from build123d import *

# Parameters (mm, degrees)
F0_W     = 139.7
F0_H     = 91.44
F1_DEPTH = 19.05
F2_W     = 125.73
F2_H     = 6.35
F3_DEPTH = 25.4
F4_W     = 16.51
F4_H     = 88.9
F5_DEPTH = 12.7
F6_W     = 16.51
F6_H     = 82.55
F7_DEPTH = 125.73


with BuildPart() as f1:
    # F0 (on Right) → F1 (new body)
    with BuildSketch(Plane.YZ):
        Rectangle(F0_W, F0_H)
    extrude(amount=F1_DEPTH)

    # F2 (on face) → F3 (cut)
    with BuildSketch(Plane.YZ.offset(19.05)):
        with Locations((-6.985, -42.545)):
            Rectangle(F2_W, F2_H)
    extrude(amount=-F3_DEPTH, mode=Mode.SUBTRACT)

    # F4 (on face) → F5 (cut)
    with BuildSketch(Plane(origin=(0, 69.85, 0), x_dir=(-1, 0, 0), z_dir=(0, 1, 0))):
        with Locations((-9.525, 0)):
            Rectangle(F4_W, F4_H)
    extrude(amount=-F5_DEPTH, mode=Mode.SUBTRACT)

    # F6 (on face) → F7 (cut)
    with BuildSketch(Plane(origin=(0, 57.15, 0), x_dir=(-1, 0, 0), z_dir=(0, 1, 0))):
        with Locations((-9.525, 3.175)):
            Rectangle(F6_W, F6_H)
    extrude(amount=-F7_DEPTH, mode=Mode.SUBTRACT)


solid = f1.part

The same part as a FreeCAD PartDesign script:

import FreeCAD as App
import Part
import Sketcher
Q = App.Units.Quantity


def add_polygon(sketch, points):
    """Adds a closed chain of lines whose ends are joined by coincident constraints."""
    first, n = sketch.GeometryCount, len(points)
    for a, b in zip(points, points[1:] + points[:1]):
        sketch.addGeometry(Part.LineSegment(App.Vector(*a, 0), App.Vector(*b, 0)), False)
    for i in range(n):
        sketch.addConstraint(Sketcher.Constraint("Coincident", first + i, 2, first + (i + 1) % n, 1))

doc = App.newDocument("Part")
body = doc.addObject("PartDesign::Body", "Body")

# Sketch on YZ plane
sketch1 = doc.addObject("Sketcher::SketchObject", "Sketch")
body.addObject(sketch1)
sketch1.AttachmentSupport = (doc.YZ_Plane, [""])
sketch1.MapMode = "FlatFace"
add_polygon(sketch1, [(-70, 46), (-70, -46), (70, -46), (70, 46)])  # lines 0-3
sketch1.addConstraint([
    Sketcher.Constraint("Vertical", 0),
    Sketcher.Constraint("Horizontal", 1),
    Sketcher.Constraint("Vertical", 2),
    Sketcher.Constraint("Horizontal", 3),
    Sketcher.Constraint("Symmetric", 0, 2, 2, 2, -1, 1),
    Sketcher.Constraint("DistanceX", 1, 1, 1, 2, Q("5.5 in")),
    Sketcher.Constraint("DistanceY", 0, 2, 0, 1, Q("3.6 in")),
])
pad1 = doc.addObject("PartDesign::Pad", "Pad")
body.addObject(pad1)
pad1.Profile = sketch1
pad1.Length = Q("0.75 in")

# Sketch on YZ plane
sketch2 = doc.addObject("Sketcher::SketchObject", "Sketch001")
body.addObject(sketch2)
sketch2.AttachmentSupport = (doc.YZ_Plane, [""])
sketch2.MapMode = "FlatFace"
sketch2.AttachmentOffset = App.Placement(App.Vector(0, 0, 0.75 * 25.4), App.Rotation())
add_polygon(sketch2, [(-70, -39), (-70, -46), (56, -46), (56, -39)])  # lines 0-3
sketch2.addConstraint([
    Sketcher.Constraint("Vertical", 0),
    Sketcher.Constraint("Horizontal", 1),
    Sketcher.Constraint("Vertical", 2),
    Sketcher.Constraint("Horizontal", 3),
    Sketcher.Constraint("DistanceX", 1, 1, 1, 2, Q("4.95 in")),
    Sketcher.Constraint("DistanceY", 0, 2, 0, 1, Q("0.25 in")),
    Sketcher.Constraint("DistanceY", 0, 2, -1, 1, Q("1.8 in")),
    Sketcher.Constraint("DistanceX", -1, 1, 1, 2, Q("2.2 in")),
])
pocket1 = doc.addObject("PartDesign::Pocket", "Pocket")
body.addObject(pocket1)
pocket1.Profile = sketch2
pocket1.Length = Q("1 in")

# Sketch on XZ plane
sketch3 = doc.addObject("Sketcher::SketchObject", "Sketch002")
body.addObject(sketch3)
sketch3.AttachmentSupport = (doc.XZ_Plane, [""])
sketch3.MapMode = "FlatFace"
sketch3.AttachmentOffset = App.Placement(App.Vector(0, 0, -2.75 * 25.4), App.Rotation())
add_polygon(sketch3, [(18, 44), (18, -44), (1, -44), (1, 44)])  # lines 0-3
sketch3.addConstraint([
    Sketcher.Constraint("Vertical", 0),
    Sketcher.Constraint("Horizontal", 1),
    Sketcher.Constraint("Vertical", 2),
    Sketcher.Constraint("Horizontal", 3),
    Sketcher.Constraint("DistanceY", 0, 2, 0, 1, Q("3.5 in")),
    Sketcher.Constraint("DistanceX", 1, 2, 1, 1, Q("0.65 in")),
    Sketcher.Constraint("DistanceX", -1, 1, 0, 2, Q("0.7 in")),
    Sketcher.Constraint("DistanceY", 0, 2, -1, 1, Q("1.75 in")),
])
pocket2 = doc.addObject("PartDesign::Pocket", "Pocket001")
body.addObject(pocket2)
pocket2.Profile = sketch3
pocket2.Length = Q("0.5 in")
pocket2.Reversed = True

# Sketch on XZ plane
sketch4 = doc.addObject("Sketcher::SketchObject", "Sketch003")
body.addObject(sketch4)
sketch4.AttachmentSupport = (doc.XZ_Plane, [""])
sketch4.MapMode = "FlatFace"
sketch4.AttachmentOffset = App.Placement(App.Vector(0, 0, -2.25 * 25.4), App.Rotation())
add_polygon(sketch4, [(18, 44), (18, -38), (1, -38), (1, 44)])  # lines 0-3
sketch4.addConstraint([
    Sketcher.Constraint("Vertical", 0),
    Sketcher.Constraint("Horizontal", 1),
    Sketcher.Constraint("Vertical", 2),
    Sketcher.Constraint("Horizontal", 3),
    Sketcher.Constraint("DistanceX", 1, 2, 1, 1, Q("0.65 in")),
    Sketcher.Constraint("DistanceY", 0, 2, 0, 1, Q("3.25 in")),
    Sketcher.Constraint("DistanceX", -1, 1, 0, 2, Q("0.7 in")),
    Sketcher.Constraint("DistanceY", 0, 2, -1, 1, Q("1.5 in")),
])
pocket3 = doc.addObject("PartDesign::Pocket", "Pocket002")
body.addObject(pocket3)
pocket3.Profile = sketch4
pocket3.Length = Q("4.95 in")
pocket3.Reversed = True

doc.recompute()
